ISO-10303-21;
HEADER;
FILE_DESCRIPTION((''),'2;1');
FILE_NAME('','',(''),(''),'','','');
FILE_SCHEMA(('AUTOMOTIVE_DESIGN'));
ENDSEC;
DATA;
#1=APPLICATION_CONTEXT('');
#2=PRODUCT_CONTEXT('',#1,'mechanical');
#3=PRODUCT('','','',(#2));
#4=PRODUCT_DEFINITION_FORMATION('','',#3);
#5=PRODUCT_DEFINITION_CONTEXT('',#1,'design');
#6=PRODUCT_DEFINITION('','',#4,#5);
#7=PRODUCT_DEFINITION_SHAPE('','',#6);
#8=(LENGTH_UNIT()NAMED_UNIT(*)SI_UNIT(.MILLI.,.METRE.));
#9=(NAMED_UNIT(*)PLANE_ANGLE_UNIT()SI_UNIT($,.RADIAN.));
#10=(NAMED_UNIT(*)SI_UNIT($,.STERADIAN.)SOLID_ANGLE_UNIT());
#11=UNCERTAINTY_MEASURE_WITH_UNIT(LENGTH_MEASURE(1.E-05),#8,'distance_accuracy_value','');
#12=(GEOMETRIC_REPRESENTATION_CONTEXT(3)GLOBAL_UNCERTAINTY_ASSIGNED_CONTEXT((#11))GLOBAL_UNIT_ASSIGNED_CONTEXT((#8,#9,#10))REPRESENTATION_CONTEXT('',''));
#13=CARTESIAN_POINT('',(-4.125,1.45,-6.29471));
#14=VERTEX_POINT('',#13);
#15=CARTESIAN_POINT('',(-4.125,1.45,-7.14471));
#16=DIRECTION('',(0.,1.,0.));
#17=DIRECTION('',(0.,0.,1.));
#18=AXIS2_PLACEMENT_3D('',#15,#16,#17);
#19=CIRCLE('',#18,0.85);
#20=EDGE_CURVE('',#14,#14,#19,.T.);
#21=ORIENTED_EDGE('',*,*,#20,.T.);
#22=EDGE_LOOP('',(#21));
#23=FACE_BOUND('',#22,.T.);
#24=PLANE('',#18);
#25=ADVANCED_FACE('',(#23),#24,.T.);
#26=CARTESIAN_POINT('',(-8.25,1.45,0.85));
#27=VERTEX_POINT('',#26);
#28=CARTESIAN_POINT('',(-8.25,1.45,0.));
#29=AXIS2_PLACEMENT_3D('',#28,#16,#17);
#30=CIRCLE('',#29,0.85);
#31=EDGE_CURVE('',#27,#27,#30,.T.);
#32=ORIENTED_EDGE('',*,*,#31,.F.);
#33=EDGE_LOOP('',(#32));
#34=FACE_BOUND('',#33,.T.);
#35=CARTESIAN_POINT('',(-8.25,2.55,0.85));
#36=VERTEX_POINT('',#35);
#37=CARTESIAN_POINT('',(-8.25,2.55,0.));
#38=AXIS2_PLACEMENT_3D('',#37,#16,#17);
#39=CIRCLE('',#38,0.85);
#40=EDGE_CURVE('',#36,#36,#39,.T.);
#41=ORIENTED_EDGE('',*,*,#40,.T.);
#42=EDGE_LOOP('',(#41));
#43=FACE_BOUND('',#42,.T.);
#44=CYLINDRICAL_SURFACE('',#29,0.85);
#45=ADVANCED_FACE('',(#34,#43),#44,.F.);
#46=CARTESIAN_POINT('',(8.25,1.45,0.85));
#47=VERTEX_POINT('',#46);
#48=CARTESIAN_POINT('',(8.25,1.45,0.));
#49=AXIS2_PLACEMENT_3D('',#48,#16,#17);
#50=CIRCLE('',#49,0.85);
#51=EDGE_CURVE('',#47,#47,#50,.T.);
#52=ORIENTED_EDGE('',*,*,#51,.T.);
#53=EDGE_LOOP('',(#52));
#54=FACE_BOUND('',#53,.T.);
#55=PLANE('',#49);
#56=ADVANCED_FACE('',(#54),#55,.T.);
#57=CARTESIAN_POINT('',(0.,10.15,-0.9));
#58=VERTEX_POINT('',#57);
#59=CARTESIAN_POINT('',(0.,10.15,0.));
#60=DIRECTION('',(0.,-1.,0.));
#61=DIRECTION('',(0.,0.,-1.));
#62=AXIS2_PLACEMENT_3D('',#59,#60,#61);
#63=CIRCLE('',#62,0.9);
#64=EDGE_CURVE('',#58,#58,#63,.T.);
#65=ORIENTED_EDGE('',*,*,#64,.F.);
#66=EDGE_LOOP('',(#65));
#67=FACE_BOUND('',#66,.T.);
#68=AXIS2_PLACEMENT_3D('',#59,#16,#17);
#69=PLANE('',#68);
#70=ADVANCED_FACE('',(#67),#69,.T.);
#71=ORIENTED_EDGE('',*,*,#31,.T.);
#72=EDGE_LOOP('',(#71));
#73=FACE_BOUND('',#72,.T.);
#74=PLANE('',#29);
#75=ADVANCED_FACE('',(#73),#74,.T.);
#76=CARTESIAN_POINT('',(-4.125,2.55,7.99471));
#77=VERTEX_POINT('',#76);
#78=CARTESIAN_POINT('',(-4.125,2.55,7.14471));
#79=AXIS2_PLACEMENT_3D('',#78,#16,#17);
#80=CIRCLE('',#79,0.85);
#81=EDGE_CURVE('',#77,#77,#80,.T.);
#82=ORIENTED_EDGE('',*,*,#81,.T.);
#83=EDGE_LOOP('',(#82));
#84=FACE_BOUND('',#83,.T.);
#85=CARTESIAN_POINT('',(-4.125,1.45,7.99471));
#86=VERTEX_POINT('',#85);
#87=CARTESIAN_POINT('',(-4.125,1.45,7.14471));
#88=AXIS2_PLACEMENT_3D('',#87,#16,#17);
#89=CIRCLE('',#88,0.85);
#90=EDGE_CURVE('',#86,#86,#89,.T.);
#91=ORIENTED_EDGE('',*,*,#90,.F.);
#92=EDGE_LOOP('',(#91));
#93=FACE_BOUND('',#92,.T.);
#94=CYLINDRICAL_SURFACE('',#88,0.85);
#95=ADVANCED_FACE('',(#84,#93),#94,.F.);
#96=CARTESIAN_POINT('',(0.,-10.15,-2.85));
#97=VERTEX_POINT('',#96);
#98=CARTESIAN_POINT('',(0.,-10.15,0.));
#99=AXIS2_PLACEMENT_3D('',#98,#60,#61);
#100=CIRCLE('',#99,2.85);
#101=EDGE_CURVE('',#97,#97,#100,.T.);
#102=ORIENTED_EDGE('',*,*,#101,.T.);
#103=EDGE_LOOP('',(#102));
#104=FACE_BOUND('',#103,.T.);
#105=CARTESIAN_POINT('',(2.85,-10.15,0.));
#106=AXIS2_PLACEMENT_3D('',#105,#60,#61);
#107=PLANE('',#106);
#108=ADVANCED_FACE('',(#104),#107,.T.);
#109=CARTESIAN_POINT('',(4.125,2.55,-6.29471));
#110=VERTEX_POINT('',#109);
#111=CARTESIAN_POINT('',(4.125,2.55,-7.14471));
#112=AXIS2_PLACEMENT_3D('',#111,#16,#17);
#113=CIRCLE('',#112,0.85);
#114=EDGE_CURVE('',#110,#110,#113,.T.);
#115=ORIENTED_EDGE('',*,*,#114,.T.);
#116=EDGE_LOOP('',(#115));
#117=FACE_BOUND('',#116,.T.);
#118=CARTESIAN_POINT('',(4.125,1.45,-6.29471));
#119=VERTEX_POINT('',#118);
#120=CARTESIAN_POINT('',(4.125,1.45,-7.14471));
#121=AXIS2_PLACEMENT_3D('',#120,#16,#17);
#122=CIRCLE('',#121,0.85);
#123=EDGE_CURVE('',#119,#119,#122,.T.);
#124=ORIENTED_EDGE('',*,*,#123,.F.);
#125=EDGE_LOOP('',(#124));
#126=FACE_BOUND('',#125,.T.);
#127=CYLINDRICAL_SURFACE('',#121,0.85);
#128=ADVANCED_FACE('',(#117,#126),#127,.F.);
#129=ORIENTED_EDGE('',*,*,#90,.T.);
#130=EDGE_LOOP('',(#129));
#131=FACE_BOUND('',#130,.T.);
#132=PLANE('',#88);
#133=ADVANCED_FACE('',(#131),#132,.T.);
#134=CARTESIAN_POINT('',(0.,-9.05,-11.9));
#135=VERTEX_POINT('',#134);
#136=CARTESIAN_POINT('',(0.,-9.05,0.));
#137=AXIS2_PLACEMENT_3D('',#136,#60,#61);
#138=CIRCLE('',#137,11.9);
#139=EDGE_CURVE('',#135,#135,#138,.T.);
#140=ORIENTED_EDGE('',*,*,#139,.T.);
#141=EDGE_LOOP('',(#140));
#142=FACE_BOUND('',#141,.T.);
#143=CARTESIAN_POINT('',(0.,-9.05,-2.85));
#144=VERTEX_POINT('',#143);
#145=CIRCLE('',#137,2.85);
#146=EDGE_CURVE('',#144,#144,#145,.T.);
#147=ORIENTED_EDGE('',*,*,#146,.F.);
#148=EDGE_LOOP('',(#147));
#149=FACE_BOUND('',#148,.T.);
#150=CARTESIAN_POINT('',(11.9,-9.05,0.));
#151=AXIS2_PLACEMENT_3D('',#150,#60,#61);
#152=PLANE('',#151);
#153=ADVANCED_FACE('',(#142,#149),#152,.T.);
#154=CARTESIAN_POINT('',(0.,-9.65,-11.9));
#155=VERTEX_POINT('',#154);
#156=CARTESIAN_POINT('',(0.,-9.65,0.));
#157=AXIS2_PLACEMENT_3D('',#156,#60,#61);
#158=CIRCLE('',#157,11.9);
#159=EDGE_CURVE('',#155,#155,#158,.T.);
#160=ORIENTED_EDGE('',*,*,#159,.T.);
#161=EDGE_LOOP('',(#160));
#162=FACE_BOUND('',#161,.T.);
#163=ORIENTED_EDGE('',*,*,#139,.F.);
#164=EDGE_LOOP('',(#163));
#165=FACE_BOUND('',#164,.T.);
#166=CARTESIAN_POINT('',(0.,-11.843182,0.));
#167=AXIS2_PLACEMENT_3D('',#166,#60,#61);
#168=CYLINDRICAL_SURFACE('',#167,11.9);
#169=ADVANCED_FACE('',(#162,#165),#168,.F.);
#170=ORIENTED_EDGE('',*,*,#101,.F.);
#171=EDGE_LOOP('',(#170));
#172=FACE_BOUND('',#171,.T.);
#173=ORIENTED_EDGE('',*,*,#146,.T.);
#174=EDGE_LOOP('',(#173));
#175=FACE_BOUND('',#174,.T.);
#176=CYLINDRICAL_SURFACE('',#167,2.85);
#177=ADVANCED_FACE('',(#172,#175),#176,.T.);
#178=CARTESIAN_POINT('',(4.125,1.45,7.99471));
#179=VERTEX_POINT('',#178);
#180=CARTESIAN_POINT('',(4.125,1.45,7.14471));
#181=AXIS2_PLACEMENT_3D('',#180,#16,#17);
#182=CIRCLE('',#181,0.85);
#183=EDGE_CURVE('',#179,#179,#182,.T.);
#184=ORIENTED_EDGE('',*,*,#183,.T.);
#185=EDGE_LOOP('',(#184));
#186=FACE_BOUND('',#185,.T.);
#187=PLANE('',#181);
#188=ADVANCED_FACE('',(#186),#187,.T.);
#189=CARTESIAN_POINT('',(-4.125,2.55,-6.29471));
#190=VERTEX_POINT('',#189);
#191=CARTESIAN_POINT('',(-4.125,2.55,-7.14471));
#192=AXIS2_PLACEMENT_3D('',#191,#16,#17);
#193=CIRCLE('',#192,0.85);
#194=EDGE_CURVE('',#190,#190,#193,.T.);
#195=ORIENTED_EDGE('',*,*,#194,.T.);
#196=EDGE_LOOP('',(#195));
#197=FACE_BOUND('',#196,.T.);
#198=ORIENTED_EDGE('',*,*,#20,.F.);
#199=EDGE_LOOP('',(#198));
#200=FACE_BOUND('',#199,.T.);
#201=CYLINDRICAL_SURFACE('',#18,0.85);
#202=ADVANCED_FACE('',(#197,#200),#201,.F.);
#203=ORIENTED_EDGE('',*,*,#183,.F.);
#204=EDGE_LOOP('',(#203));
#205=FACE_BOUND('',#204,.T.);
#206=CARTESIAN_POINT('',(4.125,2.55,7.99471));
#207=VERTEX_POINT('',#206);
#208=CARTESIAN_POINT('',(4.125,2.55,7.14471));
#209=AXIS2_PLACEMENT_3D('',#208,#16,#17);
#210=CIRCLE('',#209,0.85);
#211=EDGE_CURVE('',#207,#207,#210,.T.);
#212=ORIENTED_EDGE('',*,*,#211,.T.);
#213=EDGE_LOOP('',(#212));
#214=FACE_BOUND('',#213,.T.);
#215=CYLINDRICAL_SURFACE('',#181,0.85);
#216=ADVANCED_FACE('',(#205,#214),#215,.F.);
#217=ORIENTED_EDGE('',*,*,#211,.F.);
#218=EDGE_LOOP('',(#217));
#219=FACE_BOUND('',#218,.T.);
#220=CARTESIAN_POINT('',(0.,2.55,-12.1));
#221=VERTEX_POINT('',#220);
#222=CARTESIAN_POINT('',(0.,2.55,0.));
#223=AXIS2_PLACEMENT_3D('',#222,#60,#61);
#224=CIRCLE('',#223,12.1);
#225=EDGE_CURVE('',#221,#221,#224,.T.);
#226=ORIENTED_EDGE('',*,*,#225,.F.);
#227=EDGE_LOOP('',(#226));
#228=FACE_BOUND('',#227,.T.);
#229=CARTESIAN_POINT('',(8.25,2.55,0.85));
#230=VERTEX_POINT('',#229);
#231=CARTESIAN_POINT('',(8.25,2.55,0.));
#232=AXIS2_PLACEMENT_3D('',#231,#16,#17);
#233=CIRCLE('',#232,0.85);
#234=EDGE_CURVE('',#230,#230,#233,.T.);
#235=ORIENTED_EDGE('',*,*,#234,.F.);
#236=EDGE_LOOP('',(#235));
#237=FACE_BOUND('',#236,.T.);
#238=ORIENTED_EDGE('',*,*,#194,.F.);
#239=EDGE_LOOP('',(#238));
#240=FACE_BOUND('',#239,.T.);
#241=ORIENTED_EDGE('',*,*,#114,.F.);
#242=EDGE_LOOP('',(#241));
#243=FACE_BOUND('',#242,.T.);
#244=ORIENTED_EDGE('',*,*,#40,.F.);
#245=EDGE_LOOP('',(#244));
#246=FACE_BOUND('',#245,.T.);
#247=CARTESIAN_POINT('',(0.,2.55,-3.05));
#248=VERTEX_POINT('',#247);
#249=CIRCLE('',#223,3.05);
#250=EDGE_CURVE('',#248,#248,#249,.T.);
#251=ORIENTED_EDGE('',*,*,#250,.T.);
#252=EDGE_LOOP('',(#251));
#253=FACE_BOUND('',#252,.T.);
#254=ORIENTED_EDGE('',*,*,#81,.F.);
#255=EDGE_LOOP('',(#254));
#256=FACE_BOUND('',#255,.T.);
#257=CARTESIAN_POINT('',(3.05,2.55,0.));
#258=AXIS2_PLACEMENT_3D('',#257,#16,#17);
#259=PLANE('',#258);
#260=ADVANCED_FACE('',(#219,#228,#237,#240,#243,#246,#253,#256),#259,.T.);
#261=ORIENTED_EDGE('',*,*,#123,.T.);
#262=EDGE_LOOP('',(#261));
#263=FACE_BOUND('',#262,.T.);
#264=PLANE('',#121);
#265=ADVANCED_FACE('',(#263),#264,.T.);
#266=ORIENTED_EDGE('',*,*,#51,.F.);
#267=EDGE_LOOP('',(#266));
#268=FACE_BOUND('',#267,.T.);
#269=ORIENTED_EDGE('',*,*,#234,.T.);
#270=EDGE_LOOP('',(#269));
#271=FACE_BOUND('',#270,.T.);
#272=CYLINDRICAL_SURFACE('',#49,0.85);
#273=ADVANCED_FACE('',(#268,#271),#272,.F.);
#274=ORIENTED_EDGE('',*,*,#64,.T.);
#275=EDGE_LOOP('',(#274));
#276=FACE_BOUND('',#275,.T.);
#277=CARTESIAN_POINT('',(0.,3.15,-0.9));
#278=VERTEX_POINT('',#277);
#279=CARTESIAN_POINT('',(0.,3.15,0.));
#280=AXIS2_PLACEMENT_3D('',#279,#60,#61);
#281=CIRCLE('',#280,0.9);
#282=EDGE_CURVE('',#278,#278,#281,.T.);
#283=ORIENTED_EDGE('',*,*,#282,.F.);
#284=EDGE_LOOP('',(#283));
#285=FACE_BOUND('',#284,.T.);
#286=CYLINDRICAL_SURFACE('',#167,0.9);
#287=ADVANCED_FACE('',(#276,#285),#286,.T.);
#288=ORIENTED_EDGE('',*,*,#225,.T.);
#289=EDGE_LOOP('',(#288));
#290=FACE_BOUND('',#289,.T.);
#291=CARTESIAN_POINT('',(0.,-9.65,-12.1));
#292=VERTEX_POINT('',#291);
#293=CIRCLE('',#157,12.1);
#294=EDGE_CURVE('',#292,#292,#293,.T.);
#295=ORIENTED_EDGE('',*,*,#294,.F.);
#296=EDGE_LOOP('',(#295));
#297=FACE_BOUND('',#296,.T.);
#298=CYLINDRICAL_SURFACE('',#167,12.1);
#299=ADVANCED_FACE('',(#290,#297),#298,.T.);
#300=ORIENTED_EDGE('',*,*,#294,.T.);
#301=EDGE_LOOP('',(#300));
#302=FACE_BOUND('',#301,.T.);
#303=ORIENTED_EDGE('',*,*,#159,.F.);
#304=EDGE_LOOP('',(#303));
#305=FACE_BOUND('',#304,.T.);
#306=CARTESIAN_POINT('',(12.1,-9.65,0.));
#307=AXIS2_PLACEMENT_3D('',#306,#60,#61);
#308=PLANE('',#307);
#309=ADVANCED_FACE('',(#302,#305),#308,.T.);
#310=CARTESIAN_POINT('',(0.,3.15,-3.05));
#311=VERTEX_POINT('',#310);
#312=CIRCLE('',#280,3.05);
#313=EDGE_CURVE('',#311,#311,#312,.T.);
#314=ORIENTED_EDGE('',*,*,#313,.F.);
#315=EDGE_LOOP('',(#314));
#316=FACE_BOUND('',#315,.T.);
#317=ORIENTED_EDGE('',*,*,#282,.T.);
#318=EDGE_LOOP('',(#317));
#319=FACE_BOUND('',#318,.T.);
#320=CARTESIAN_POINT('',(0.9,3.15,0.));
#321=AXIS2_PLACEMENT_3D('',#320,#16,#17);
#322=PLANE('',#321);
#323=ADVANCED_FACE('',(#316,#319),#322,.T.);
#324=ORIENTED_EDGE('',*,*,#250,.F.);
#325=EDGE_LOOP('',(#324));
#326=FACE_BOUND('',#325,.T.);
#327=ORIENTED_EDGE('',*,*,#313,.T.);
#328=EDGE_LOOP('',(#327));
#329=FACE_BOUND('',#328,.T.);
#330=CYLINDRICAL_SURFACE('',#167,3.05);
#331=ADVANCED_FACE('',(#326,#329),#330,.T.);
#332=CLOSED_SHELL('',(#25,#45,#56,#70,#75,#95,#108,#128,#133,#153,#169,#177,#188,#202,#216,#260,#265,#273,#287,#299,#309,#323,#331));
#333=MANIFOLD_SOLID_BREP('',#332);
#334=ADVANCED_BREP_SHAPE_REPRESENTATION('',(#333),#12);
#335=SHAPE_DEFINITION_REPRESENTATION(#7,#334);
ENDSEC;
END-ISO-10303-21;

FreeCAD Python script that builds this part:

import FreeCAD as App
import Part
import Sketcher

doc = App.newDocument("Part")
body = doc.addObject("PartDesign::Body", "Body")

# Sketch on XY plane
sketch1 = body.newObject("Sketcher::SketchObject", "Sketch")
sketch1.AttachmentSupport = (doc.getObject("XY_Plane"), [""])
sketch1.MapMode = "FlatFace"
sketch1.addGeometry([
    Part.LineSegment(App.Vector(0, 10.15, 0), App.Vector(0, -10.15, 0)),  # 0
    Part.LineSegment(App.Vector(0, -10.15, 0), App.Vector(2.85, -10.15, 0)),  # 1
    Part.LineSegment(App.Vector(2.85, -10.15, 0), App.Vector(2.85, -9.05, 0)),  # 2
    Part.LineSegment(App.Vector(2.85, -9.05, 0), App.Vector(11.9, -9.05, 0)),  # 3
    Part.LineSegment(App.Vector(11.9, -9.05, 0), App.Vector(11.9, -9.65, 0)),  # 4
    Part.LineSegment(App.Vector(11.9, -9.65, 0), App.Vector(12.1, -9.65, 0)),  # 5
    Part.LineSegment(App.Vector(12.1, -9.65, 0), App.Vector(12.1, 2.55, 0)),  # 6
    Part.LineSegment(App.Vector(12.1, 2.55, 0), App.Vector(3.05, 2.55, 0)),  # 7
    Part.LineSegment(App.Vector(3.05, 2.55, 0), App.Vector(3.05, 3.15, 0)),  # 8
    Part.LineSegment(App.Vector(3.05, 3.15, 0), App.Vector(0.9, 3.15, 0)),  # 9
    Part.LineSegment(App.Vector(0.9, 3.15, 0), App.Vector(0.9, 10.15, 0)),  # 10
    Part.LineSegment(App.Vector(0.9, 10.15, 0), App.Vector(0, 10.15, 0)),  # 11
], False)
sketch1.addConstraint([
    Sketcher.Constraint("Coincident", 0, 2, 1, 1),
    Sketcher.Constraint("Coincident", 1, 2, 2, 1),
    Sketcher.Constraint("Coincident", 2, 2, 3, 1),
    Sketcher.Constraint("Coincident", 3, 2, 4, 1),
    Sketcher.Constraint("Coincident", 4, 2, 5, 1),
    Sketcher.Constraint("Coincident", 5, 2, 6, 1),
    Sketcher.Constraint("Coincident", 6, 2, 7, 1),
    Sketcher.Constraint("Coincident", 7, 2, 8, 1),
    Sketcher.Constraint("Coincident", 8, 2, 9, 1),
    Sketcher.Constraint("Coincident", 9, 2, 10, 1),
    Sketcher.Constraint("Coincident", 10, 2, 11, 1),
    Sketcher.Constraint("Coincident", 11, 2, 0, 1),
    Sketcher.Constraint("Vertical", 0),
    Sketcher.Constraint("Horizontal", 1),
    Sketcher.Constraint("Vertical", 2),
    Sketcher.Constraint("Horizontal", 3),
    Sketcher.Constraint("Vertical", 4),
    Sketcher.Constraint("Horizontal", 5),
    Sketcher.Constraint("Vertical", 6),
    Sketcher.Constraint("Horizontal", 7),
    Sketcher.Constraint("Vertical", 8),
    Sketcher.Constraint("Horizontal", 9),
    Sketcher.Constraint("Vertical", 10),
    Sketcher.Constraint("Horizontal", 11),
    Sketcher.Constraint("Symmetric", 0, 2, 11, 2, -1, 1),
    Sketcher.Constraint("Equal", 3, 7),
    Sketcher.Constraint("Equal", 4, 8),
    Sketcher.Constraint("DistanceY", 10, 1, 10, 2, 7.0),
    Sketcher.Constraint("DistanceX", 5, 1, 5, 2, 0.2),
    Sketcher.Constraint("DistanceX", 11, 2, 11, 1, 0.9),
    Sketcher.Constraint("DistanceY", 0, 2, 0, 1, 20.3),
    Sketcher.Constraint("DistanceY", 2, 1, 2, 2, 1.1),
    Sketcher.Constraint("DistanceY", 4, 2, 4, 1, 0.6),
    Sketcher.Constraint("DistanceX", 1, 1, 1, 2, 2.85),
    Sketcher.Constraint("DistanceX", 3, 1, 3, 2, 9.05),
])
revolution = body.newObject("PartDesign::Revolution", "Revolution")
revolution.Profile = sketch1
revolution.ReferenceAxis = (sketch1, ["V_Axis"])
revolution.Angle = 360

# Sketch on XZ plane
sketch2 = body.newObject("Sketcher::SketchObject", "Sketch001")
sketch2.AttachmentSupport = (doc.getObject("XZ_Plane"), [""])
sketch2.MapMode = "FlatFace"
sketch2.AttachmentOffset = App.Placement(App.Vector(0, 0, -2.55), App.Rotation())
sketch2.addGeometry([
    Part.Circle(App.Vector(-8.2, 0, 0), App.Vector(0, 0, 1), 0.8),  # 0
    Part.Circle(App.Vector(-4.1, -7.1, 0), App.Vector(0, 0, 1), 0.8),  # 1
    Part.Circle(App.Vector(4.1, -7.1, 0), App.Vector(0, 0, 1), 0.8),  # 2
    Part.Circle(App.Vector(8.2, 0, 0), App.Vector(0, 0, 1), 0.8),  # 3
    Part.Circle(App.Vector(4.1, 7.1, 0), App.Vector(0, 0, 1), 0.8),  # 4
    Part.Circle(App.Vector(-4.1, 7.1, 0), App.Vector(0, 0, 1), 0.8),  # 5
], False)
sketch2.addConstraint([
    Sketcher.Constraint("Equal", 0, 1),
    Sketcher.Constraint("Equal", 1, 2),
    Sketcher.Constraint("Equal", 2, 3),
    Sketcher.Constraint("Equal", 3, 4),
    Sketcher.Constraint("Equal", 4, 5),
    Sketcher.Constraint("Symmetric", 0, 3, 3, 3, -1, 1),
    Sketcher.Constraint("Symmetric", 1, 3, 4, 3, -1, 1),
    Sketcher.Constraint("Symmetric", 2, 3, 5, 3, -1, 1),
    Sketcher.Constraint("Symmetric", 1, 3, 2, 3, -2),
    Sketcher.Constraint("PointOnObject", 0, 3, -1),
    Sketcher.Constraint("Diameter", 0, 1.7),
    Sketcher.Constraint("DistanceX", 0, 3, 3, 3, 16.5),
    Sketcher.Constraint("DistanceX", 1, 3, 2, 3, 8.25),
    Sketcher.Constraint("DistanceY", 1, 3, -1, 1, 7.14471),
])
pocket1 = body.newObject("PartDesign::Pocket", "Pocket")
pocket1.Profile = sketch2
pocket1.Length = 1.1
pocket1.Reversed = True

doc.recompute()
